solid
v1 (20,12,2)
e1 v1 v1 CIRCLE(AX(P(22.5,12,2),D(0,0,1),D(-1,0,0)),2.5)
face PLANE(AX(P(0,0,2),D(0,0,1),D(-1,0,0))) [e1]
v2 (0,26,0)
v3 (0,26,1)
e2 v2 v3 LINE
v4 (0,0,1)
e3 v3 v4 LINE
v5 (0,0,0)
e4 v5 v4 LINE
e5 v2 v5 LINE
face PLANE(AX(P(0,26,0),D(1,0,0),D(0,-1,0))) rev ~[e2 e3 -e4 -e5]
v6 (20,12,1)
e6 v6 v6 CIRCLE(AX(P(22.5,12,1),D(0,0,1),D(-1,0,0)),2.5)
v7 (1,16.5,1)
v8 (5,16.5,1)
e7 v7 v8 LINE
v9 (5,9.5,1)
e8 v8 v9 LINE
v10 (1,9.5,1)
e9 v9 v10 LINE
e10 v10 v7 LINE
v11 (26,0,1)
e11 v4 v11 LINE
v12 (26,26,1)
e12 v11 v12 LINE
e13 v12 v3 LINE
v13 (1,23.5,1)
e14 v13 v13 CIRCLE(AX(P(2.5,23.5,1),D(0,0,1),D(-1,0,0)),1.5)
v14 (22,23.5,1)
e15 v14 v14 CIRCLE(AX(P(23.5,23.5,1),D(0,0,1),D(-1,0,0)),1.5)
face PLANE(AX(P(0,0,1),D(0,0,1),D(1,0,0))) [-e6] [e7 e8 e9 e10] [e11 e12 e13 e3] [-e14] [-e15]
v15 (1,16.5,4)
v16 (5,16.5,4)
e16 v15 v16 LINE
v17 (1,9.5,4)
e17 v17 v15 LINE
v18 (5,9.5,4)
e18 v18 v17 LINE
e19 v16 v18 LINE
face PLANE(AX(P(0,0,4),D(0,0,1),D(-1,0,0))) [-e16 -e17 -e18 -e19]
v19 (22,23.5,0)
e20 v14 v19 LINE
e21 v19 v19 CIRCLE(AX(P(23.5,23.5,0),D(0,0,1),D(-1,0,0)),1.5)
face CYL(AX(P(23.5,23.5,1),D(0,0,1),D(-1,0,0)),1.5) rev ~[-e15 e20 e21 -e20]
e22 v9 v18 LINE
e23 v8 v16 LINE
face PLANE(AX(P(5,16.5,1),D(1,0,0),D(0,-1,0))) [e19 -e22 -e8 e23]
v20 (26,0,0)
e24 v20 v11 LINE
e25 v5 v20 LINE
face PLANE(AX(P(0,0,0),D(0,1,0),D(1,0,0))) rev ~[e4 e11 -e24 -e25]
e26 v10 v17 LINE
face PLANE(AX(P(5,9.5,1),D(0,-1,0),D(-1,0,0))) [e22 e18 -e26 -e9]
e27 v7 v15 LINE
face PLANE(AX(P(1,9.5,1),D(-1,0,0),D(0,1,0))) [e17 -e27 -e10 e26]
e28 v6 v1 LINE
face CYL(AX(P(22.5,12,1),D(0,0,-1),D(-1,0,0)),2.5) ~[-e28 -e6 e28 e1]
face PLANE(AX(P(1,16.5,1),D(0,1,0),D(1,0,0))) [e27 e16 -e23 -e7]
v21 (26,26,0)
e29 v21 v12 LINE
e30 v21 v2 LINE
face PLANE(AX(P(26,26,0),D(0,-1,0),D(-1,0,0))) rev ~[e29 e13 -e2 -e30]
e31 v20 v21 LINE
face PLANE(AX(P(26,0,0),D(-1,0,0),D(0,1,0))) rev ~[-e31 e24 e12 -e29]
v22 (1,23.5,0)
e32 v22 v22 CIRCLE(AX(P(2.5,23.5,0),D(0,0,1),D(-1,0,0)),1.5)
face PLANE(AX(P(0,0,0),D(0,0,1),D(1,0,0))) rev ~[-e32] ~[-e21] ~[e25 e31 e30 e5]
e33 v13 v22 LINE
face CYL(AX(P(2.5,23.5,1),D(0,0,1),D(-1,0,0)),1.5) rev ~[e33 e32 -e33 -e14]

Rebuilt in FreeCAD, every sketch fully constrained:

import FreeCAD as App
import Part
import Sketcher
from FreeCAD import Vector


def add_polygon(sketch, points):
    """Adds a closed chain of lines whose ends are joined by coincident constraints."""
    first, n = sketch.GeometryCount, len(points)
    for a, b in zip(points, points[1:] + points[:1]):
        sketch.addGeometry(Part.LineSegment(App.Vector(*a, 0), App.Vector(*b, 0)), False)
    for i in range(n):
        sketch.addConstraint(Sketcher.Constraint("Coincident", first + i, 2, first + (i + 1) % n, 1))

doc = App.newDocument("Part")
params = doc.addObject("Spreadsheet::Sheet", "Params")
for row, (alias, value) in enumerate([
    ("sketch1_width", "26 mm"),
    ("pad1_length", "1 mm"),
    ("sketch2_diameter", "3 mm"),
    ("pocket1_length", "4 mm"),
    ("sketch3_width", "4 mm"),
    ("sketch3_height", "7 mm"),
    ("pad2_length", "3 mm"),
    ("sketch4_diameter", "5 mm"),
    ("pad3_length", "1 mm"),
], start=1):
    params.set(f"A{row}", alias)
    params.set(f"B{row}", "=" + value)
    params.setAlias(f"B{row}", alias)

body = doc.addObject("PartDesign::Body", "Body")

# Sketch on XY plane
sketch1 = body.newObject("Sketcher::SketchObject", "Sketch")
sketch1.AttachmentSupport = (doc.getObject("XY_Plane"), [""])
sketch1.MapMode = "FlatFace"
add_polygon(sketch1, [(0, 26), (0, 0), (26, 0), (26, 26)])  # lines 0-3
sketch1.addConstraint([
    Sketcher.Constraint("Vertical", 0),
    Sketcher.Constraint("Horizontal", 1),
    Sketcher.Constraint("Vertical", 2),
    Sketcher.Constraint("Horizontal", 3),
    Sketcher.Constraint("Coincident", 0, 2, -1, 1),
    Sketcher.Constraint("Equal", 3, 0),
    Sketcher.Constraint("DistanceX", 1, 1, 1, 2, 26.0),
])
sketch1.setExpression("Constraints[10]", "Params.sketch1_width")
pad1 = body.newObject("PartDesign::Pad", "Pad")
pad1.Profile = sketch1
pad1.setExpression("Length", "Params.pad1_length")

# Sketch on XY plane
sketch2 = body.newObject("Sketcher::SketchObject", "Sketch001")
sketch2.AttachmentSupport = (doc.getObject("XY_Plane"), [""])
sketch2.MapMode = "FlatFace"
sketch2.AttachmentOffset = App.Placement(Vector(0, 0, 1), App.Rotation())
sketch2.addGeometry([
    Part.Circle(Vector(23.5, 23.5, 0), Vector(0, 0, 1), 1.5),
    Part.Circle(Vector(2.5, 23.5, 0), Vector(0, 0, 1), 1.5),
], False)
sketch2.addConstraint([
    Sketcher.Constraint("Equal", 0, 1),
    Sketcher.Constraint("Horizontal", 0, 3, 1, 3),
    Sketcher.Constraint("Diameter", 0, 3.0),
    Sketcher.Constraint("DistanceX", -1, 1, 1, 3, 2.5),
    Sketcher.Constraint("DistanceX", 1, 3, 0, 3, 21.0),
    Sketcher.Constraint("DistanceY", -1, 1, 0, 3, 23.5),
])
sketch2.setExpression("Constraints[2]", "Params.sketch2_diameter")
pocket1 = body.newObject("PartDesign::Pocket", "Pocket")
pocket1.Profile = sketch2
pocket1.setExpression("Length", "Params.pocket1_length")

# Sketch on XY plane
sketch3 = body.newObject("Sketcher::SketchObject", "Sketch002")
sketch3.AttachmentSupport = (doc.getObject("XY_Plane"), [""])
sketch3.MapMode = "FlatFace"
sketch3.AttachmentOffset = App.Placement(Vector(0, 0, 1), App.Rotation())
add_polygon(sketch3, [(5, 16.5), (1, 16.5), (1, 9.5), (5, 9.5)])  # lines 0-3
sketch3.addConstraint([
    Sketcher.Constraint("Horizontal", 0),
    Sketcher.Constraint("Vertical", 1),
    Sketcher.Constraint("Horizontal", 2),
    Sketcher.Constraint("Vertical", 3),
    Sketcher.Constraint("DistanceX", 0, 2, 0, 1, 4.0),
    Sketcher.Constraint("DistanceY", 1, 2, 1, 1, 7.0),
    Sketcher.Constraint("DistanceX", -1, 1, 0, 2, 1.0),
    Sketcher.Constraint("DistanceY", -1, 1, 0, 2, 16.5),
])
sketch3.setExpression("Constraints[8]", "Params.sketch3_width")
sketch3.setExpression("Constraints[9]", "Params.sketch3_height")
pad2 = body.newObject("PartDesign::Pad", "Pad001")
pad2.Profile = sketch3
pad2.setExpression("Length", "Params.pad2_length")

# Sketch on XY plane
sketch4 = body.newObject("Sketcher::SketchObject", "Sketch003")
sketch4.AttachmentSupport = (doc.getObject("XY_Plane"), [""])
sketch4.MapMode = "FlatFace"
sketch4.AttachmentOffset = App.Placement(Vector(0, 0, 1), App.Rotation())
sketch4.addGeometry(Part.Circle(Vector(22.5, 12, 0), Vector(0, 0, 1), 2.5), False)
sketch4.addConstraint([
    Sketcher.Constraint("Diameter", 0, 5.0),
    Sketcher.Constraint("DistanceY", -1, 1, 0, 3, 12.0),
    Sketcher.Constraint("DistanceX", -1, 1, 0, 3, 22.5),
])
sketch4.setExpression("Constraints[0]", "Params.sketch4_diameter")
pad3 = body.newObject("PartDesign::Pad", "Pad002")
pad3.Profile = sketch4
pad3.setExpression("Length", "Params.pad3_length")

doc.recompute()
